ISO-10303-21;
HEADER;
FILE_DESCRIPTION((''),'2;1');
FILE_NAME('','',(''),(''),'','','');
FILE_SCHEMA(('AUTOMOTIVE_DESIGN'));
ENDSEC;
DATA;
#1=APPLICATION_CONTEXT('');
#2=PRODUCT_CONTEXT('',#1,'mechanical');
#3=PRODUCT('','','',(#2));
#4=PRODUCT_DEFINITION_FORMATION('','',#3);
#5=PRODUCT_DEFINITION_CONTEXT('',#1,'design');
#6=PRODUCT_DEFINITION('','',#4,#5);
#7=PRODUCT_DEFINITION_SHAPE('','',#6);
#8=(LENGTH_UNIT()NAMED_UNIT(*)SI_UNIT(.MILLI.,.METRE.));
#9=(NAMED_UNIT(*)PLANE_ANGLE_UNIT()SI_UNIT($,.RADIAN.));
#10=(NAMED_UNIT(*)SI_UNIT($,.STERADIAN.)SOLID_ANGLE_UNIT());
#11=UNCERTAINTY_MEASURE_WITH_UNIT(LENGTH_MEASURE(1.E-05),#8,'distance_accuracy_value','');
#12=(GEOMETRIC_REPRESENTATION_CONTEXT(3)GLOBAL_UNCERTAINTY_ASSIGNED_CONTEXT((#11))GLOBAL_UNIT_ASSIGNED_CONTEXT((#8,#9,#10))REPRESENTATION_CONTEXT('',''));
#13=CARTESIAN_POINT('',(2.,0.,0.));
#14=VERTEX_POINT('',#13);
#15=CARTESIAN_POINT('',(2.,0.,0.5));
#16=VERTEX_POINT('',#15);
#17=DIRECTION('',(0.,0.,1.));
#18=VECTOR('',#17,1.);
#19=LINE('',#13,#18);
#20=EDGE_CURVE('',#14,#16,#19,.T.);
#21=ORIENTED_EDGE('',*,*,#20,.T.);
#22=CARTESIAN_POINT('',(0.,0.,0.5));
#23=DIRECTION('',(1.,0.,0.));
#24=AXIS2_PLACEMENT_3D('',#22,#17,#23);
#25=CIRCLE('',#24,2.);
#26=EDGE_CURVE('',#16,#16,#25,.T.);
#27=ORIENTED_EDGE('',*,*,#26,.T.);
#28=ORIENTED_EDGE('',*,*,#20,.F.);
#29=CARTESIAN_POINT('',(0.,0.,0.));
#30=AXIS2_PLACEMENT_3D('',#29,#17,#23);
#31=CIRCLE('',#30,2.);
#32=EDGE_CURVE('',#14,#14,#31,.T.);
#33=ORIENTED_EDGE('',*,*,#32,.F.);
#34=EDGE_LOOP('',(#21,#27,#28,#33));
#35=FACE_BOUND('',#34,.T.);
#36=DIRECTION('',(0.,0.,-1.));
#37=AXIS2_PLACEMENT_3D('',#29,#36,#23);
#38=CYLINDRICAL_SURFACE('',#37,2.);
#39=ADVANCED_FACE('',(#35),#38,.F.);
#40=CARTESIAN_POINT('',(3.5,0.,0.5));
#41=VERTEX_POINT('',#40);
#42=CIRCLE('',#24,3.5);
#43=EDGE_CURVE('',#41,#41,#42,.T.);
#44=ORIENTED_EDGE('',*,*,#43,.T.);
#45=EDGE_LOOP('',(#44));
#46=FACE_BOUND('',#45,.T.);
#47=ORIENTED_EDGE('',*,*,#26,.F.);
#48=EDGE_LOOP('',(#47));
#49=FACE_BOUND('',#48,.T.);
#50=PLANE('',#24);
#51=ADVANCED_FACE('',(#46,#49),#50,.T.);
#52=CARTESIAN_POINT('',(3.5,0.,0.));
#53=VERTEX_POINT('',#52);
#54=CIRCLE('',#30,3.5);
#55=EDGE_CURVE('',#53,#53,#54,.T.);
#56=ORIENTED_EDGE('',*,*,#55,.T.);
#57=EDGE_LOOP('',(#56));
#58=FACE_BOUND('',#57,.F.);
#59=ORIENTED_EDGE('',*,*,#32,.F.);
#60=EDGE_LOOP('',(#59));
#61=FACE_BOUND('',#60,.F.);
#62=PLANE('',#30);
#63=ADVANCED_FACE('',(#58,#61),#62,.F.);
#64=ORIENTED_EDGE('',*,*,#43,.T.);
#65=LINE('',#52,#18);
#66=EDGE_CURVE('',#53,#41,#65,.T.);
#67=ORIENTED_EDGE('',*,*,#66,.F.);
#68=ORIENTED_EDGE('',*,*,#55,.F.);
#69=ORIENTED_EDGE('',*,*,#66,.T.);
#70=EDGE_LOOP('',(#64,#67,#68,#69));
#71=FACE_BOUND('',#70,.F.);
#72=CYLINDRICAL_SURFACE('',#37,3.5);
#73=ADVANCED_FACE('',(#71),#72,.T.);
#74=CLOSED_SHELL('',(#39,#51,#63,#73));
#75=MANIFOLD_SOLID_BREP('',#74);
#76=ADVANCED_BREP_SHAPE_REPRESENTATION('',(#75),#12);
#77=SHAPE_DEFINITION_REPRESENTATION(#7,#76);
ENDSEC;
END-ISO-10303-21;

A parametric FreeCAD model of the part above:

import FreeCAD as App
import Part
import Sketcher
Q = App.Units.Quantity

doc = App.newDocument("Part")
body = doc.addObject("PartDesign::Body", "Body")

sketch1 = body.newObject("Sketcher::SketchObject", "Sketch")
sketch1.AttachmentSupport = (doc.getObject("XY_Plane"), [""])
sketch1.MapMode = "FlatFace"
sketch1.addGeometry([
    Part.Circle(App.Vector(0, 0, 0), App.Vector(0, 0, 1), 3.5),
    Part.Circle(App.Vector(0, 0, 0), App.Vector(0, 0, 1), 2),
], False)
sketch1.addConstraint([
    Sketcher.Constraint("Coincident", 0, 3, -1, 1),
    Sketcher.Constraint("Coincident", 1, 3, -1, 1),
    Sketcher.Constraint("Diameter", 0, Q("7 mm")),
    Sketcher.Constraint("Diameter", 1, Q("4 mm")),
])
pad1 = body.newObject("PartDesign::Pad", "Pad")
pad1.Profile = sketch1
pad1.Length = 0.5

doc.recompute()
